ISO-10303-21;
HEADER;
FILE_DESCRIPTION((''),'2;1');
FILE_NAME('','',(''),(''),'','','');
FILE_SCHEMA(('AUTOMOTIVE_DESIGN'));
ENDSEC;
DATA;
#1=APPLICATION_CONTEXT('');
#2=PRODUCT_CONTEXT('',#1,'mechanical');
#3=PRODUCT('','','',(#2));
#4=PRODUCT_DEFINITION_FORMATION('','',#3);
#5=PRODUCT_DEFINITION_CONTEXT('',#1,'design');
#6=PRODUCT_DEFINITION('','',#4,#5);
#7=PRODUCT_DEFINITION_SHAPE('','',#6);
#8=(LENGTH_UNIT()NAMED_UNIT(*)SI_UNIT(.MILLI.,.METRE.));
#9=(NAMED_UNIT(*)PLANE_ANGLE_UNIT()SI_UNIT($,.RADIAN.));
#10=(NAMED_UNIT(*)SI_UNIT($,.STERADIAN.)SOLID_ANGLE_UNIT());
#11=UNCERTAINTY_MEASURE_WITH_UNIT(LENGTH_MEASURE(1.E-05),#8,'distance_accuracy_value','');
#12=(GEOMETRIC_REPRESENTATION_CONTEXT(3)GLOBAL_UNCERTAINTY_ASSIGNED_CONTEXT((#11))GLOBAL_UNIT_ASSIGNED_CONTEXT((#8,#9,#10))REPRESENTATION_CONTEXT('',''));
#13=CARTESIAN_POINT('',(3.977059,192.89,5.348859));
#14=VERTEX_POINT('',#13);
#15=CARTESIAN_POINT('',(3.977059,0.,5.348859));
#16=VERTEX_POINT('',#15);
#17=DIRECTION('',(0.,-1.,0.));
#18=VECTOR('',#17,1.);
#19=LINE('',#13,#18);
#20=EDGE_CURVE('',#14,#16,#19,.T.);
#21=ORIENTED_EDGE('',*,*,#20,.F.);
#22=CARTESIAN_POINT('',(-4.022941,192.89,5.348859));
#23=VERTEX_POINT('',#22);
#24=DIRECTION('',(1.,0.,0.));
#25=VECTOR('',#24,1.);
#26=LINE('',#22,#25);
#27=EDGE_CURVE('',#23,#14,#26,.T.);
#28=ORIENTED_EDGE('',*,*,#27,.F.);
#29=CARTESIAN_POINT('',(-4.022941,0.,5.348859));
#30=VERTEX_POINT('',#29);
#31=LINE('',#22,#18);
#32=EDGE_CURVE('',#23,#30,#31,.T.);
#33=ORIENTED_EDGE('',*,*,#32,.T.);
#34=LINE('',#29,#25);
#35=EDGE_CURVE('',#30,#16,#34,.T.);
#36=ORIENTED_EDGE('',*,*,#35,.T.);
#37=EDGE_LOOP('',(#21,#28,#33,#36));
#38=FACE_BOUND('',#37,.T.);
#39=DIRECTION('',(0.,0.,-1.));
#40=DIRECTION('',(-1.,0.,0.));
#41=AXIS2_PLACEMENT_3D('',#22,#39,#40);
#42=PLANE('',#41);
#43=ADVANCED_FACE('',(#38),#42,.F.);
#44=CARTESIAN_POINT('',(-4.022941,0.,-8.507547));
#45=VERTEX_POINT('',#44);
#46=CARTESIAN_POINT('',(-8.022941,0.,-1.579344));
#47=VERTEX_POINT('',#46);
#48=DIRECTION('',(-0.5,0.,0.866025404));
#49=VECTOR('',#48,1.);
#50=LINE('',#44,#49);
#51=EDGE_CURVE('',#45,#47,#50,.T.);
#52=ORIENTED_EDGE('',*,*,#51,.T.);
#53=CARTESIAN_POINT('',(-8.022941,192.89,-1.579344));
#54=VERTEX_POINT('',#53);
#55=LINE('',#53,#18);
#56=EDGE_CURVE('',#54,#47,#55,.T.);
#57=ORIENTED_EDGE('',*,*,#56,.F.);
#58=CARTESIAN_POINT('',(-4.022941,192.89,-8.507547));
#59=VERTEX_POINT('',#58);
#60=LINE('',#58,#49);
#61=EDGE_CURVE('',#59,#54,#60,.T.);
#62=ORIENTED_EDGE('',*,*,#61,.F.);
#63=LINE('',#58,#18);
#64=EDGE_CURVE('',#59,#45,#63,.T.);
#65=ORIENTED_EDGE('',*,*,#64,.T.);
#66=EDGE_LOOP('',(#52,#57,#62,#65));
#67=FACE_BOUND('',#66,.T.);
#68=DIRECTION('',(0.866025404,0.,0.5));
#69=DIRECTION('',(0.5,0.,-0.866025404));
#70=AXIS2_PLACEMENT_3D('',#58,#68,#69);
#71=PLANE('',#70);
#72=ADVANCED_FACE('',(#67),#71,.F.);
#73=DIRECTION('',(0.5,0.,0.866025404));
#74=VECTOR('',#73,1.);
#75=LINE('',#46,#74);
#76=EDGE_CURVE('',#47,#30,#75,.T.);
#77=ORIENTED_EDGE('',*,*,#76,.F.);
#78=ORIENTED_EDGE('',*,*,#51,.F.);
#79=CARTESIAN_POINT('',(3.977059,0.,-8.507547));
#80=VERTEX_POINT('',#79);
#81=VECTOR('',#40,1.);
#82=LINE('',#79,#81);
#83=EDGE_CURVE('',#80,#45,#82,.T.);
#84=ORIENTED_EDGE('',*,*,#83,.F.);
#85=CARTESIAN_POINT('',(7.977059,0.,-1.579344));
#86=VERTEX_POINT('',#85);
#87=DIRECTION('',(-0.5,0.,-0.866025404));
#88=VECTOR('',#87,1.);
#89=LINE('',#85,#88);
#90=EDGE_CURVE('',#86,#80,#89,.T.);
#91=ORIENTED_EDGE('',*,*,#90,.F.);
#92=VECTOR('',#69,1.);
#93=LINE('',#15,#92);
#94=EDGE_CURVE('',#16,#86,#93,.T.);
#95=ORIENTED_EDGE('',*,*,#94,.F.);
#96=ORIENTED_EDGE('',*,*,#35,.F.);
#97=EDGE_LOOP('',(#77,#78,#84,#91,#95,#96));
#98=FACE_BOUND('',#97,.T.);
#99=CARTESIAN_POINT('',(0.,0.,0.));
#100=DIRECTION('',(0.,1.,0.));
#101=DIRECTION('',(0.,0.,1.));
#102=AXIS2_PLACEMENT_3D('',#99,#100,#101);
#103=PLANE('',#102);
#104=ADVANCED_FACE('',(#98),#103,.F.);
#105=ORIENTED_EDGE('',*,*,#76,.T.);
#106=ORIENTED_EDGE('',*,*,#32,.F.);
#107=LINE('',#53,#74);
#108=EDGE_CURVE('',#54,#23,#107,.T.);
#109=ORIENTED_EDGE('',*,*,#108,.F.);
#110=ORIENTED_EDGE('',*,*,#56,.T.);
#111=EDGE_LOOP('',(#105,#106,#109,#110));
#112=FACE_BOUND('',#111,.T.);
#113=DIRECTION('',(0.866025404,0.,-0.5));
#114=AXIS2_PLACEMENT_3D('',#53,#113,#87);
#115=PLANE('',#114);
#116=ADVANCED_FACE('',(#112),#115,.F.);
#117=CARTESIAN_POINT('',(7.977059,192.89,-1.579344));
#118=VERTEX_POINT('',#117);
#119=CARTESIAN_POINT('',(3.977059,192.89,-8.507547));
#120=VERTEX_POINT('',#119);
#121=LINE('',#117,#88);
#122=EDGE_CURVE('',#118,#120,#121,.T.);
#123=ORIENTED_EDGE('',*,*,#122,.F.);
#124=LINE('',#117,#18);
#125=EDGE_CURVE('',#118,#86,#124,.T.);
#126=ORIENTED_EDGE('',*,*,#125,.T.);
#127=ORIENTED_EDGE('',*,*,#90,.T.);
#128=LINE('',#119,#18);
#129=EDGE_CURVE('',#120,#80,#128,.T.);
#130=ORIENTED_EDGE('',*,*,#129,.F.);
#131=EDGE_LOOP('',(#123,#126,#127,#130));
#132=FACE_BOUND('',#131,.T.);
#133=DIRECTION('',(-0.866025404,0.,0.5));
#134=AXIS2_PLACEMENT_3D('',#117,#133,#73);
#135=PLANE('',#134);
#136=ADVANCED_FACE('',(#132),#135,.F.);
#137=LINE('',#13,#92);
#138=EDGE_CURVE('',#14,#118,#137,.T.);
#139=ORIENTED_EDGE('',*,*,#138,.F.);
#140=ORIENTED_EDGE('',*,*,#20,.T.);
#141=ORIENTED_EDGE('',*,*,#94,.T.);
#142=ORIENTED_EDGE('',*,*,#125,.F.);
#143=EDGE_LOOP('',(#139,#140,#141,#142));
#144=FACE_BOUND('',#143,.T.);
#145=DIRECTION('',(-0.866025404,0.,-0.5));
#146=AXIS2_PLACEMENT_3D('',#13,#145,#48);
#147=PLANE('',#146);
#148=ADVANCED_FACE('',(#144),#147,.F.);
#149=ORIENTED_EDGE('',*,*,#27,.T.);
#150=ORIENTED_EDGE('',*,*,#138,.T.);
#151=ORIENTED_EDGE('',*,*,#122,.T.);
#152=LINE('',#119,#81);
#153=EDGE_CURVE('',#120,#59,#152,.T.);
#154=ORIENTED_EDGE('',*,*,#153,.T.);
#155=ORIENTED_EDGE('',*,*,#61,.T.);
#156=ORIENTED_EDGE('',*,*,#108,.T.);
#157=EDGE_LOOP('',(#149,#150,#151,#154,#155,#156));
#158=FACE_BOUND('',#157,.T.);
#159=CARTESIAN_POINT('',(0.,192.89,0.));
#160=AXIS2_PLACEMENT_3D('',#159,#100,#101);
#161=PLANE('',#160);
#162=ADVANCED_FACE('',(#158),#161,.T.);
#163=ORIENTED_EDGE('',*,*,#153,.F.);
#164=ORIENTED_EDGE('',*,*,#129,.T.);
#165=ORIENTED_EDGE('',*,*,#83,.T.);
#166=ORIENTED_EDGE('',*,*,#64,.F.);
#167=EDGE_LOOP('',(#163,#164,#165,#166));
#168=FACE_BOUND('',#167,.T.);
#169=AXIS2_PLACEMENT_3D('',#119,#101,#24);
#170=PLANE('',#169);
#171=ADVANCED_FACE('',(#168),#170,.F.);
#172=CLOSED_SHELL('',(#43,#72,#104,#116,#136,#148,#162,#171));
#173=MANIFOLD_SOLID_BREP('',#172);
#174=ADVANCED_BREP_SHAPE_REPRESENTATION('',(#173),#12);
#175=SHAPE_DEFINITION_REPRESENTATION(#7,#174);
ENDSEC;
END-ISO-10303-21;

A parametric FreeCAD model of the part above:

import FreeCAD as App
import Part
import Sketcher

V = App.Vector
Q = App.Units.Quantity


def add_polygon(sketch, points):
    """Adds a closed chain of lines whose ends are joined by coincident constraints."""
    first, n = sketch.GeometryCount, len(points)
    for a, b in zip(points, points[1:] + points[:1]):
        sketch.addGeometry(Part.LineSegment(App.Vector(*a, 0), App.Vector(*b, 0)), False)
    for i in range(n):
        sketch.addConstraint(Sketcher.Constraint("Coincident", first + i, 2, first + (i + 1) % n, 1))

doc = App.newDocument("Part")
body = doc.addObject("PartDesign::Body", "Body")

# Sketch on XZ plane
sketch1 = body.newObject("Sketcher::SketchObject", "Sketch")
sketch1.AttachmentSupport = (doc.getObject("XZ_Plane"), [""])
sketch1.MapMode = "FlatFace"
add_polygon(sketch1, [(7.977059, -1.579344), (3.977059, -8.507547), (-4.022941, -8.507547), (-8.022941, -1.579344), (-4.022941, 5.348859), (3.977059, 5.348859)])  # lines 0-5
sketch1.addConstraint([
    Sketcher.Constraint("Horizontal", 1),
    Sketcher.Constraint("Horizontal", 4),
    Sketcher.Constraint("Parallel", 0, 3),
    Sketcher.Constraint("Parallel", 2, 5),
    Sketcher.Constraint("Horizontal", 2, 2, 5, 2),
    Sketcher.Constraint("Vertical", 1, 2, 3, 2),
    Sketcher.Constraint("Vertical", 0, 2, 4, 2),
    Sketcher.Constraint("DistanceX", 1, 2, 1, 1, Q("8 mm")),
    Sketcher.Constraint("Angle", 0, Q("-120 deg")),
    Sketcher.Constraint("Distance", 0, Q("8 mm")),
    Sketcher.Constraint("DistanceX", -1, 1, 0, 2, Q("3.977059 mm")),
    Sketcher.Constraint("DistanceY", -1, 1, 3, 2, Q("5.348859 mm")),
])
pad1 = body.newObject("PartDesign::Pad", "Pad")
pad1.Profile = sketch1
pad1.Length = 192.89
pad1.Reversed = True

doc.recompute()
